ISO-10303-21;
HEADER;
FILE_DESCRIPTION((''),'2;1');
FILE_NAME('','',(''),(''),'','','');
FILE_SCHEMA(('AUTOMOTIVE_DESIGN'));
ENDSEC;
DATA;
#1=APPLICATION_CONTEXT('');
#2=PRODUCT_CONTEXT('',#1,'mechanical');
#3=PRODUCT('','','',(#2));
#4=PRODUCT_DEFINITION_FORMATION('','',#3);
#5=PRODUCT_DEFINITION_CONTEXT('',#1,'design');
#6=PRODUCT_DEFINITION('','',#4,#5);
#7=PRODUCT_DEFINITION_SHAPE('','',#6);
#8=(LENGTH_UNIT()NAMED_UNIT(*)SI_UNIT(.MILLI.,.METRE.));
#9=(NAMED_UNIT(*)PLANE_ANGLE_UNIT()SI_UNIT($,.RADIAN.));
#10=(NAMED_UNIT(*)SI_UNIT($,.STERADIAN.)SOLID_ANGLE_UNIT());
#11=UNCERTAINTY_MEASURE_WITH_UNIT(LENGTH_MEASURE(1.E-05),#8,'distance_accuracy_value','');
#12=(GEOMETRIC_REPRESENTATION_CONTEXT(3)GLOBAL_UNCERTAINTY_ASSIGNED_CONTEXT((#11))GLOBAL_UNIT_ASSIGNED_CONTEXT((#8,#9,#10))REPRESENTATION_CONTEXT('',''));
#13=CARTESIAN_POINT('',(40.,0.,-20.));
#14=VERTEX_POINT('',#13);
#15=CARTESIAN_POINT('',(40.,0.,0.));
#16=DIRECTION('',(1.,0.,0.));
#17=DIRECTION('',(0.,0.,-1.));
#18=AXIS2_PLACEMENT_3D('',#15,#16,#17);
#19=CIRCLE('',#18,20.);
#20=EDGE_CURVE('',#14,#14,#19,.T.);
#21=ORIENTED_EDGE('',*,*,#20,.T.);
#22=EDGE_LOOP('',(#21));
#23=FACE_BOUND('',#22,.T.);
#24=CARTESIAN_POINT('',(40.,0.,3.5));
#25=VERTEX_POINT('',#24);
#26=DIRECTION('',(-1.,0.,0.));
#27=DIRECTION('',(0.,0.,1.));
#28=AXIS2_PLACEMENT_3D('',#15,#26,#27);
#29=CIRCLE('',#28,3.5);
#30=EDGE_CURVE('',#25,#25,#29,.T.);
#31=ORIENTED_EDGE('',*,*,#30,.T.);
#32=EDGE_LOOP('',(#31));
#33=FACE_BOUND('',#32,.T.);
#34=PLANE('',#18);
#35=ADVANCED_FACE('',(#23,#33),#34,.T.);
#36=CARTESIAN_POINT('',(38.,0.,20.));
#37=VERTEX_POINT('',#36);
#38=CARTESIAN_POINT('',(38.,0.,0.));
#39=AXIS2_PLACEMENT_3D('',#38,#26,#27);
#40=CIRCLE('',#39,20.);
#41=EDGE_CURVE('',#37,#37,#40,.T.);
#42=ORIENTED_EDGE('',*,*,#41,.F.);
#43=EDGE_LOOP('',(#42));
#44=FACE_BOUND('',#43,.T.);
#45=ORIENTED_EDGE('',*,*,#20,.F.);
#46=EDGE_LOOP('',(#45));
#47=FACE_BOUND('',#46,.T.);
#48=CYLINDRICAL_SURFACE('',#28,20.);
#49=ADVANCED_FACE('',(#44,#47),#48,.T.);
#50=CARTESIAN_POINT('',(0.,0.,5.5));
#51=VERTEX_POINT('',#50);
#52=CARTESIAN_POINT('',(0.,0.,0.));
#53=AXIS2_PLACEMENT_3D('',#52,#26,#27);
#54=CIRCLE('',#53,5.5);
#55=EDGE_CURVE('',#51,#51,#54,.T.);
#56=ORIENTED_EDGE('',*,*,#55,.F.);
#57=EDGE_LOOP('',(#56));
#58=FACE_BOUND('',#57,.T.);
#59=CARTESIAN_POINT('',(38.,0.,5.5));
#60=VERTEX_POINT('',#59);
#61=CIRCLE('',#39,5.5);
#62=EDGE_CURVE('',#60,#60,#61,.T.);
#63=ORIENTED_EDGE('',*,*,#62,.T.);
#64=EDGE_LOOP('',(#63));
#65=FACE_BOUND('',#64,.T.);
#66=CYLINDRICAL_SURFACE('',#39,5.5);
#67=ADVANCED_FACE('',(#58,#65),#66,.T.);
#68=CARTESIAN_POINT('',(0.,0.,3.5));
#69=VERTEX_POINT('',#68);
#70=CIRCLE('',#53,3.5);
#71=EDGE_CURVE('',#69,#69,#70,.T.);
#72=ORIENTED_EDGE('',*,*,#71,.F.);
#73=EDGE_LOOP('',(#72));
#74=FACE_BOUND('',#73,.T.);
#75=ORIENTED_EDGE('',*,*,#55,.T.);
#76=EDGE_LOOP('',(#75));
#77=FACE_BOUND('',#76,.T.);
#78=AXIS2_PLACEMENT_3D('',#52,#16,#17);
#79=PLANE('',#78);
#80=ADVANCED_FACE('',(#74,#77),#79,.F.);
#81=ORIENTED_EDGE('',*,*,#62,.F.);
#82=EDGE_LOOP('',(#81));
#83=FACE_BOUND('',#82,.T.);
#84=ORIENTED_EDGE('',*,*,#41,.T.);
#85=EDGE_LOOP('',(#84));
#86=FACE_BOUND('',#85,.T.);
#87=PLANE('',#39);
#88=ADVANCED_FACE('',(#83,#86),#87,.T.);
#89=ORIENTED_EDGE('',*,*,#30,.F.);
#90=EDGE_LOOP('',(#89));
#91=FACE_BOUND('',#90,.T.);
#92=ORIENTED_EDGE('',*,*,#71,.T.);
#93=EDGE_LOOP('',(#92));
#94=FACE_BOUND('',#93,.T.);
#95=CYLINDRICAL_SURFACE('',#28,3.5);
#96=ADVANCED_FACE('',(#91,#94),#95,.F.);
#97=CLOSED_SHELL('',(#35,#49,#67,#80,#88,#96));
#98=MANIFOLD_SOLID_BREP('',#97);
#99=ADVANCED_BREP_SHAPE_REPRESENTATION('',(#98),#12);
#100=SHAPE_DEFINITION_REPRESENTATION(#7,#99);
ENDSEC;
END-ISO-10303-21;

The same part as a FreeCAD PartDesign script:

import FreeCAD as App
import Part
import Sketcher

doc = App.newDocument("Part")
params = doc.addObject("Spreadsheet::Sheet", "Params")
for row, (alias, value) in enumerate([
    ("sketch1_diameter", "40 mm"),
    ("pad1_length", "40 mm"),
    ("sketch2_diameter", "40 mm"),
    ("sketch2_diameter2", "11 mm"),
    ("pocket1_length", "38 mm"),
    ("sketch3_diameter", "7 mm"),
    ("pocket2_length", "40 mm"),
], start=1):
    params.set(f"A{row}", alias)
    params.set(f"B{row}", "=" + value)
    params.setAlias(f"B{row}", alias)

body = doc.addObject("PartDesign::Body", "Body")

# Sketch on YZ plane
sketch1 = body.newObject("Sketcher::SketchObject", "Sketch")
sketch1.AttachmentSupport = (doc.getObject("YZ_Plane"), [""])
sketch1.MapMode = "FlatFace"
sketch1.addGeometry(Part.Circle(App.Vector(0, 0, 0), App.Vector(0, 0, 1), 20), False)
sketch1.addConstraint([
    Sketcher.Constraint("Coincident", 0, 3, -1, 1),
    Sketcher.Constraint("Diameter", 0, 40.0),
])
sketch1.setExpression("Constraints[1]", "Params.sketch1_diameter")
pad1 = body.newObject("PartDesign::Pad", "Pad")
pad1.Profile = sketch1
pad1.setExpression("Length", "Params.pad1_length")

# Sketch on YZ plane
sketch2 = body.newObject("Sketcher::SketchObject", "Sketch001")
sketch2.AttachmentSupport = (doc.getObject("YZ_Plane"), [""])
sketch2.MapMode = "FlatFace"
sketch2.addGeometry([
    Part.Circle(App.Vector(0, 0, 0), App.Vector(0, 0, 1), 20),
    Part.Circle(App.Vector(0, 0, 0), App.Vector(0, 0, 1), 6),
], False)
sketch2.addConstraint([
    Sketcher.Constraint("Coincident", 0, 3, -1, 1),
    Sketcher.Constraint("Coincident", 1, 3, -1, 1),
    Sketcher.Constraint("Diameter", 0, 40.0),
    Sketcher.Constraint("Diameter", 1, 11.0),
])
sketch2.setExpression("Constraints[2]", "Params.sketch2_diameter")
sketch2.setExpression("Constraints[3]", "Params.sketch2_diameter2")
pocket1 = body.newObject("PartDesign::Pocket", "Pocket")
pocket1.Profile = sketch2
pocket1.setExpression("Length", "Params.pocket1_length")
pocket1.Reversed = True

# Sketch on YZ plane
sketch3 = body.newObject("Sketcher::SketchObject", "Sketch002")
sketch3.AttachmentSupport = (doc.getObject("YZ_Plane"), [""])
sketch3.MapMode = "FlatFace"
sketch3.addGeometry(Part.Circle(App.Vector(0, 0, 0), App.Vector(0, 0, 1), 3.5), False)
sketch3.addConstraint([
    Sketcher.Constraint("Coincident", 0, 3, -1, 1),
    Sketcher.Constraint("Diameter", 0, 7.0),
])
sketch3.setExpression("Constraints[1]", "Params.sketch3_diameter")
pocket2 = body.newObject("PartDesign::Pocket", "Pocket001")
pocket2.Profile = sketch3
pocket2.setExpression("Length", "Params.pocket2_length")
pocket2.Reversed = True

doc.recompute()
